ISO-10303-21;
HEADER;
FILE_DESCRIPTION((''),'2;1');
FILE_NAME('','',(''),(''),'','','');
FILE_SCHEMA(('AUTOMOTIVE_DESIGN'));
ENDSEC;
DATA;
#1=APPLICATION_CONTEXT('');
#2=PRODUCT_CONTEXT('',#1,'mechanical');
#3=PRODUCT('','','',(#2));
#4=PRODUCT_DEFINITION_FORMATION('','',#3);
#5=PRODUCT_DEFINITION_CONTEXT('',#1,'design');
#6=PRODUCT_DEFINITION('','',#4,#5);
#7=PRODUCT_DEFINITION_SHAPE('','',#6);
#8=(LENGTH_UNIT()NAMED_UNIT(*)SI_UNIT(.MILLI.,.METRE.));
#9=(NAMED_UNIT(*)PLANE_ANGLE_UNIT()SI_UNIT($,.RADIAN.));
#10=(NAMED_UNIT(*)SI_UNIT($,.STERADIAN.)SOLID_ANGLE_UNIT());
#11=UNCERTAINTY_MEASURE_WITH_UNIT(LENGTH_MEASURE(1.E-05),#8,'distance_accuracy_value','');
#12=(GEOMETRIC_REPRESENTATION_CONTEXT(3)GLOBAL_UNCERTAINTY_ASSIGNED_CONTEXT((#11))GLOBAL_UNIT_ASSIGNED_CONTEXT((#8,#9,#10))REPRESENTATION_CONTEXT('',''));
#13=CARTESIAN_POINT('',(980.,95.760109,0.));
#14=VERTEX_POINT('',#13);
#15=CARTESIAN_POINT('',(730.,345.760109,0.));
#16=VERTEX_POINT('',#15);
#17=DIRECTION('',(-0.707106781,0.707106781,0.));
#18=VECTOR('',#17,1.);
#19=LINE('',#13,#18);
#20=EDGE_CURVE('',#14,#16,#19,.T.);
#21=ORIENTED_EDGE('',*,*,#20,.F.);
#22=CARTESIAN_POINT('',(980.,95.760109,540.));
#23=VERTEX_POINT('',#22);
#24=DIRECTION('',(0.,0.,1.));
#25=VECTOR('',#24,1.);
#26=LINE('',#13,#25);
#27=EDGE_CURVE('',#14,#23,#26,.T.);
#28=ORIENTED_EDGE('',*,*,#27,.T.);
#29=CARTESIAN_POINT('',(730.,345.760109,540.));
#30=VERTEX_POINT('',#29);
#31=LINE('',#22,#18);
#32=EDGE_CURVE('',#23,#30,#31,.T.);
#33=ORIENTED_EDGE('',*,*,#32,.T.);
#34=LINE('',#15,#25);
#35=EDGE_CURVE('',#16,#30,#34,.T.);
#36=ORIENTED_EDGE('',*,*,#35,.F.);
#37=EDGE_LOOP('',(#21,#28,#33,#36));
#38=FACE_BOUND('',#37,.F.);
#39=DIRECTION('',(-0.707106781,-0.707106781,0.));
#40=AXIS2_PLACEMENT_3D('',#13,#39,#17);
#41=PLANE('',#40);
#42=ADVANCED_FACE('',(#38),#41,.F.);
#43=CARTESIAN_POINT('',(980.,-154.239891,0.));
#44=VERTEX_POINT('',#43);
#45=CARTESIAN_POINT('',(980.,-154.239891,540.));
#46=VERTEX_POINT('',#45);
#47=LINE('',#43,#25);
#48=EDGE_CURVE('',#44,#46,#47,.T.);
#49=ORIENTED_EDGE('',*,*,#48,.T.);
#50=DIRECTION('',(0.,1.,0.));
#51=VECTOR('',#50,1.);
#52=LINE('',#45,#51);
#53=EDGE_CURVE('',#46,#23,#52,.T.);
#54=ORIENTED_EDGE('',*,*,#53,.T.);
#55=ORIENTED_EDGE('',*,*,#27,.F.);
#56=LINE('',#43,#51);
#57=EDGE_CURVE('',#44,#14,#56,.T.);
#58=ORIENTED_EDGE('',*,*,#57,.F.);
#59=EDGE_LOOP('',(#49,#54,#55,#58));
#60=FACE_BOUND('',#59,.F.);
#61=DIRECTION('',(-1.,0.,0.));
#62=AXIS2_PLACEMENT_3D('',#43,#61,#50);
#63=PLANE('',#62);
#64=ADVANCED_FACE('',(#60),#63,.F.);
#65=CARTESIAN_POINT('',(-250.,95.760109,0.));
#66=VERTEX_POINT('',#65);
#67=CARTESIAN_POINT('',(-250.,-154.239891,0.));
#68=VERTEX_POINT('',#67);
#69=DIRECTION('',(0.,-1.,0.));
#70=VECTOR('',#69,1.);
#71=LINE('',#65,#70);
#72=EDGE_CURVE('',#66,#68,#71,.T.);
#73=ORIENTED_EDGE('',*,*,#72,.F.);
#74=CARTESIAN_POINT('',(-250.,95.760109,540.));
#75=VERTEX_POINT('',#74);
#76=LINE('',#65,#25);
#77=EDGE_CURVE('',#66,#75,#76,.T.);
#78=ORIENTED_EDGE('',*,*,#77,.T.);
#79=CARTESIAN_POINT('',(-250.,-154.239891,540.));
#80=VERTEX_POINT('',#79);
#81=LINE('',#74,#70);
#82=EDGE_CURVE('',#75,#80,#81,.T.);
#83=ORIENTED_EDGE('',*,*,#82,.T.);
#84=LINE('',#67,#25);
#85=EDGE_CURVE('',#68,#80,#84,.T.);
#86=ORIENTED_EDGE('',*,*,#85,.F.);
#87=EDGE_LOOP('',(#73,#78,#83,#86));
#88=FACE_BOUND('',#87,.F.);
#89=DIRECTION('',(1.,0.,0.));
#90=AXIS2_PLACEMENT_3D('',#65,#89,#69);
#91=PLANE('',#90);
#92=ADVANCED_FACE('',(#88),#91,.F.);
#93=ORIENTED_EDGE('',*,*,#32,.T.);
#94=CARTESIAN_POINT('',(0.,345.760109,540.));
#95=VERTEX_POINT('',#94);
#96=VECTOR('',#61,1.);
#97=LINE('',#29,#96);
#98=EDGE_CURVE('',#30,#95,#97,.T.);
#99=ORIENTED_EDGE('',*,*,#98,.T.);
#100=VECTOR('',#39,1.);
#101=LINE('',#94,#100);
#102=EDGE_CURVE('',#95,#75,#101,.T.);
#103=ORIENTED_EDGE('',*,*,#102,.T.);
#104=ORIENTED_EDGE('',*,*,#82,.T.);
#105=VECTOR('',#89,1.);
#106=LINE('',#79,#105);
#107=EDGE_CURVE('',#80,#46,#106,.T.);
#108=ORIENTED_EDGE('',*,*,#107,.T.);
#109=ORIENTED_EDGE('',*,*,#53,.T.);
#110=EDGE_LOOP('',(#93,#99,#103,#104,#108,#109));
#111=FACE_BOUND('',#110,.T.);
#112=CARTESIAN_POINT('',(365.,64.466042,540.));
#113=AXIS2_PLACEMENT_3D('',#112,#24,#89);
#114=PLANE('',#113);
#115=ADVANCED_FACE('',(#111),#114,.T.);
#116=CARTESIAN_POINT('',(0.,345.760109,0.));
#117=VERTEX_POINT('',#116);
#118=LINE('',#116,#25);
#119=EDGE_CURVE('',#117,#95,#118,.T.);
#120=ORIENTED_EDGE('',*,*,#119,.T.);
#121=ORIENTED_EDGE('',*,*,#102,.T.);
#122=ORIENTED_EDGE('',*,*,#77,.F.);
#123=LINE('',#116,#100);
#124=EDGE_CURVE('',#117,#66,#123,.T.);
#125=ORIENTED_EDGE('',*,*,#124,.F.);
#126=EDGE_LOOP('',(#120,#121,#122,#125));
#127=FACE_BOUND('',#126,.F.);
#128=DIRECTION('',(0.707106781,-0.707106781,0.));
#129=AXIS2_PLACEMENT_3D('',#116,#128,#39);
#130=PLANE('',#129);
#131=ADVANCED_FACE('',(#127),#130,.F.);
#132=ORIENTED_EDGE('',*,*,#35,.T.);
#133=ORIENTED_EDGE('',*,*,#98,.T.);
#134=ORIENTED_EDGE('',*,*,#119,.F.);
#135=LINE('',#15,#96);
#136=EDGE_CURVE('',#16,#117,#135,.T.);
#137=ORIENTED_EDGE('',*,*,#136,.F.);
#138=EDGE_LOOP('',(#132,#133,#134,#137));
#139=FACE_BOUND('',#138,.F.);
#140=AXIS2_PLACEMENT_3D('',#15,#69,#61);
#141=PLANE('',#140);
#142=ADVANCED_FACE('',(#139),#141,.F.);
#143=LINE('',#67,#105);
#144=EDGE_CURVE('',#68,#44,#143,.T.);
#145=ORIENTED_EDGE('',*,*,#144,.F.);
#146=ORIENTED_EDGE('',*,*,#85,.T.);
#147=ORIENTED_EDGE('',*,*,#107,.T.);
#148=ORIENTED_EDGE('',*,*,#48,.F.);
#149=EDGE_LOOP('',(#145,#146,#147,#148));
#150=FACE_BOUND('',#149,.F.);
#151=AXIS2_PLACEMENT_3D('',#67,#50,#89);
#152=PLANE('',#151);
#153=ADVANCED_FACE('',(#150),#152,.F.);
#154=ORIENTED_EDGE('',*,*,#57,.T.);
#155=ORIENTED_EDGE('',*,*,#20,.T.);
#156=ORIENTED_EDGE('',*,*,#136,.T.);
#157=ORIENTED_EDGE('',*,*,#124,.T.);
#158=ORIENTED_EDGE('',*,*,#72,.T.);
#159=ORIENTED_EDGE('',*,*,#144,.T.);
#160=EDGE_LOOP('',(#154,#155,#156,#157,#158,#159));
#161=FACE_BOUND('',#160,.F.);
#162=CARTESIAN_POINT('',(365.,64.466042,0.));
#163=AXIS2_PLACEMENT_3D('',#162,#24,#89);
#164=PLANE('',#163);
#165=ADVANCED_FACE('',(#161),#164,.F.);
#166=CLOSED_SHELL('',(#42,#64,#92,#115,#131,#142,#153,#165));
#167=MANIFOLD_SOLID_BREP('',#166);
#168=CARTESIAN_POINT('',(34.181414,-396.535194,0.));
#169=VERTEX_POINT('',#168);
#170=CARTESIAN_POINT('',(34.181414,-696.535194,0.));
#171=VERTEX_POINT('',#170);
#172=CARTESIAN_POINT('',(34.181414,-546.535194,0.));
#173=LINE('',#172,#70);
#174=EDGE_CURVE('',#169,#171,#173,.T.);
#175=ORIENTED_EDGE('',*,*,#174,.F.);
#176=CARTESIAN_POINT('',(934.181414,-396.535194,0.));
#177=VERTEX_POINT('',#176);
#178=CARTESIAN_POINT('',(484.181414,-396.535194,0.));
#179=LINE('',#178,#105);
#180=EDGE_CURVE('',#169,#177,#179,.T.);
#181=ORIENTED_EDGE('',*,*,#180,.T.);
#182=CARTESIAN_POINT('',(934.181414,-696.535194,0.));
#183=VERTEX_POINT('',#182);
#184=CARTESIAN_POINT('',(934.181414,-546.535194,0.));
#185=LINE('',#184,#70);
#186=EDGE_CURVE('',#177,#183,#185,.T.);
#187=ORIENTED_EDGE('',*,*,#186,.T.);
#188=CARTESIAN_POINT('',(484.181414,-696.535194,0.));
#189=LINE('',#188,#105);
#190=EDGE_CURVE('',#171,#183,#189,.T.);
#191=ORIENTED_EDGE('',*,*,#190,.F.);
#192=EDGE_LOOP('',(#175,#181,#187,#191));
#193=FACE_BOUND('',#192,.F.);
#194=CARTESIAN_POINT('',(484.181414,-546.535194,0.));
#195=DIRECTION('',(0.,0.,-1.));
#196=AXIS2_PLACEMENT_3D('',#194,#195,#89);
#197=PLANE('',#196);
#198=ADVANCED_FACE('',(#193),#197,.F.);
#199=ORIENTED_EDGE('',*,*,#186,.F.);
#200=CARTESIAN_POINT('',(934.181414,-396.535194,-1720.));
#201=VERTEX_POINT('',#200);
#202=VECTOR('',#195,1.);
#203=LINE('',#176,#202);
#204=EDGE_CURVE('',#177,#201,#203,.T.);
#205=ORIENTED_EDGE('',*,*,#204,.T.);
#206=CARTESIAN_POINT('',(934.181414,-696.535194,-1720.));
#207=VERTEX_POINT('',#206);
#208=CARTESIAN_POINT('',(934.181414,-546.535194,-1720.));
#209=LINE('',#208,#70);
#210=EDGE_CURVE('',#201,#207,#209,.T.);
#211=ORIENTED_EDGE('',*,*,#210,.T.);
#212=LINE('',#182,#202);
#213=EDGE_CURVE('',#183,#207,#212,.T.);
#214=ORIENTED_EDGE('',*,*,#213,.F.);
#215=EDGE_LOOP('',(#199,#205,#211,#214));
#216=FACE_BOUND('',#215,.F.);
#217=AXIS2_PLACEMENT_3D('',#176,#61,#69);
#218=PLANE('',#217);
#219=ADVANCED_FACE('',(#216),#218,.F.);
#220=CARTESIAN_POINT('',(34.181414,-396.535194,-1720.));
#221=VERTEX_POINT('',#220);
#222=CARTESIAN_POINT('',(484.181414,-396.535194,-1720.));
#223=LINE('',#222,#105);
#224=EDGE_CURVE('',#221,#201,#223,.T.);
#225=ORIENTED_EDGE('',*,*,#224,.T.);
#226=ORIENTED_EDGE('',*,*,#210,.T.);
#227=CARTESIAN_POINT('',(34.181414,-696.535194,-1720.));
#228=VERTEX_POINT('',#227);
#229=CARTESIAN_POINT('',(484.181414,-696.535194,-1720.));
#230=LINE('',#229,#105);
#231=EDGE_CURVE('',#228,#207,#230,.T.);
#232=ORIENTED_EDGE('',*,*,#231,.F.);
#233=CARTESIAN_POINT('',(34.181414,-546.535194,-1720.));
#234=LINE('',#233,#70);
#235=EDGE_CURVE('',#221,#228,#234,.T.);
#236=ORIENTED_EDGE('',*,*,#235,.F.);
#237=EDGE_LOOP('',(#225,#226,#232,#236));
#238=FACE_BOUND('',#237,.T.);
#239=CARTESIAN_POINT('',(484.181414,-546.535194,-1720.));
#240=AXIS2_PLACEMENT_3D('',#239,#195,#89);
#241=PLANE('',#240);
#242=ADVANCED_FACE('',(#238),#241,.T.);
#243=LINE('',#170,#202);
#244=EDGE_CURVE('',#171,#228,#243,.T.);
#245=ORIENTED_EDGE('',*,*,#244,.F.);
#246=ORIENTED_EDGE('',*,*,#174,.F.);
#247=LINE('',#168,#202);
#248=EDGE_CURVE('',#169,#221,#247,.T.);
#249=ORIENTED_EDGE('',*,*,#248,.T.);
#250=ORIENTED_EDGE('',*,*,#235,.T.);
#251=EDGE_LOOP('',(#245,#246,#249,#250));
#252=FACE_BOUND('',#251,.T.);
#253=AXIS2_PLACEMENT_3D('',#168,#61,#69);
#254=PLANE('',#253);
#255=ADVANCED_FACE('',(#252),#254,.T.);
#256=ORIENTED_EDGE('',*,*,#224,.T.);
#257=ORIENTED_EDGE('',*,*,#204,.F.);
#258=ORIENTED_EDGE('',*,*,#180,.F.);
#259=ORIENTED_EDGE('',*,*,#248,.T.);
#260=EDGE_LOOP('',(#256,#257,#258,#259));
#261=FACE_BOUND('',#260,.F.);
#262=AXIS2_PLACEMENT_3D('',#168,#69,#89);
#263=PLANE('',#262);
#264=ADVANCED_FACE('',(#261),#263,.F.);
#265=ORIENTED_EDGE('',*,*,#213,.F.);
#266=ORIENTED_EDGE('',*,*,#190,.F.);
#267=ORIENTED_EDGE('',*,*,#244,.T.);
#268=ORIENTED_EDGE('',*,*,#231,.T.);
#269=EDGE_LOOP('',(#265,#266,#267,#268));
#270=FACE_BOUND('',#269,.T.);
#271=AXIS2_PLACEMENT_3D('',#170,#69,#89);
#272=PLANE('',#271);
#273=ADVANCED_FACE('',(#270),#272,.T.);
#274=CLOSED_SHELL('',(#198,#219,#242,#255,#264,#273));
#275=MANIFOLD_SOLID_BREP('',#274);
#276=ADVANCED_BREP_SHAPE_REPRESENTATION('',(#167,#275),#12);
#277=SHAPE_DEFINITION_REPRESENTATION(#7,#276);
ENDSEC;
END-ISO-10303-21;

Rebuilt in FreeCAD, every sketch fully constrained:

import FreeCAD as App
import Part
import Sketcher

V = App.Vector

doc = App.newDocument("Part")
body = doc.addObject("PartDesign::Body", "Body")

# Sketch on XY plane
sketch1 = body.newObject("Sketcher::SketchObject", "Sketch")
sketch1.AttachmentSupport = (doc.getObject("XY_Plane"), [""])
sketch1.MapMode = "FlatFace"
sketch1.addGeometry([
    Part.LineSegment(V(-250, 95.760109, 0), V(-250, -154.239891, 0)),  # 0
    Part.LineSegment(V(-250, -154.239891, 0), V(980, -154.239891, 0)),  # 1
    Part.LineSegment(V(980, -154.239891, 0), V(980, 95.760109, 0)),  # 2
    Part.LineSegment(V(980, 95.760109, 0), V(730, 345.760109, 0)),  # 3
    Part.LineSegment(V(730, 345.760109, 0), V(0, 345.760109, 0)),  # 4
    Part.LineSegment(V(0, 345.760109, 0), V(-250, 95.760109, 0)),  # 5
], False)
sketch1.addConstraint([
    Sketcher.Constraint("Coincident", 0, 2, 1, 1),
    Sketcher.Constraint("Coincident", 1, 2, 2, 1),
    Sketcher.Constraint("Coincident", 2, 2, 3, 1),
    Sketcher.Constraint("Coincident", 3, 2, 4, 1),
    Sketcher.Constraint("Coincident", 4, 2, 5, 1),
    Sketcher.Constraint("Coincident", 5, 2, 0, 1),
    Sketcher.Constraint("Vertical", 0),
    Sketcher.Constraint("Horizontal", 1),
    Sketcher.Constraint("Vertical", 2),
    Sketcher.Constraint("Horizontal", 4),
    Sketcher.Constraint("PointOnObject", 4, 2, -2),
    Sketcher.Constraint("Perpendicular", 3, 5),
    Sketcher.Constraint("Horizontal", 2, 2, 5, 2),
    Sketcher.Constraint("Equal", 3, 5),
    Sketcher.Constraint("DistanceX", 1, 1, 1, 2, 1230.0),
    Sketcher.Constraint("DistanceX", 4, 2, 4, 1, 730.0),
    Sketcher.Constraint("DistanceY", 0, 2, 0, 1, 250.0),
    Sketcher.Constraint("DistanceY", 0, 2, -1, 1, 154.239891),
])
pad1 = body.newObject("PartDesign::Pad", "Pad")
pad1.Profile = sketch1
pad1.Length = 540
body2 = doc.addObject("PartDesign::Body", "Body001")

# Sketch on XY plane
sketch2 = body2.newObject("Sketcher::SketchObject", "Sketch001")
sketch2.AttachmentSupport = (doc.getObject("XY_Plane001"), [""])
sketch2.MapMode = "FlatFace"
sketch2.addGeometry([
    Part.LineSegment(V(34.181414, -696.535194, 0), V(34.181414, -396.535194, 0)),
    Part.LineSegment(V(34.181414, -396.535194, 0), V(934.181414, -396.535194, 0)),
    Part.LineSegment(V(934.181414, -396.535194, 0), V(934.181414, -696.535194, 0)),
    Part.LineSegment(V(934.181414, -696.535194, 0), V(34.181414, -696.535194, 0)),
], False)
sketch2.addConstraint([
    Sketcher.Constraint("Coincident", 0, 2, 1, 1),
    Sketcher.Constraint("Coincident", 1, 2, 2, 1),
    Sketcher.Constraint("Coincident", 2, 2, 3, 1),
    Sketcher.Constraint("Coincident", 3, 2, 0, 1),
    Sketcher.Constraint("Vertical", 0),
    Sketcher.Constraint("Horizontal", 1),
    Sketcher.Constraint("Vertical", 2),
    Sketcher.Constraint("Horizontal", 3),
    Sketcher.Constraint("DistanceX", 1, 1, 1, 2, 900.0),
    Sketcher.Constraint("DistanceY", 0, 1, 0, 2, 300.0),
    Sketcher.Constraint("DistanceX", -1, 1, 0, 2, 34.181414),
    Sketcher.Constraint("DistanceY", 0, 2, -1, 1, 396.535194),
])
pad2 = body2.newObject("PartDesign::Pad", "Pad001")
pad2.Profile = sketch2
pad2.Length = 1720
pad2.Reversed = True

doc.recompute()
